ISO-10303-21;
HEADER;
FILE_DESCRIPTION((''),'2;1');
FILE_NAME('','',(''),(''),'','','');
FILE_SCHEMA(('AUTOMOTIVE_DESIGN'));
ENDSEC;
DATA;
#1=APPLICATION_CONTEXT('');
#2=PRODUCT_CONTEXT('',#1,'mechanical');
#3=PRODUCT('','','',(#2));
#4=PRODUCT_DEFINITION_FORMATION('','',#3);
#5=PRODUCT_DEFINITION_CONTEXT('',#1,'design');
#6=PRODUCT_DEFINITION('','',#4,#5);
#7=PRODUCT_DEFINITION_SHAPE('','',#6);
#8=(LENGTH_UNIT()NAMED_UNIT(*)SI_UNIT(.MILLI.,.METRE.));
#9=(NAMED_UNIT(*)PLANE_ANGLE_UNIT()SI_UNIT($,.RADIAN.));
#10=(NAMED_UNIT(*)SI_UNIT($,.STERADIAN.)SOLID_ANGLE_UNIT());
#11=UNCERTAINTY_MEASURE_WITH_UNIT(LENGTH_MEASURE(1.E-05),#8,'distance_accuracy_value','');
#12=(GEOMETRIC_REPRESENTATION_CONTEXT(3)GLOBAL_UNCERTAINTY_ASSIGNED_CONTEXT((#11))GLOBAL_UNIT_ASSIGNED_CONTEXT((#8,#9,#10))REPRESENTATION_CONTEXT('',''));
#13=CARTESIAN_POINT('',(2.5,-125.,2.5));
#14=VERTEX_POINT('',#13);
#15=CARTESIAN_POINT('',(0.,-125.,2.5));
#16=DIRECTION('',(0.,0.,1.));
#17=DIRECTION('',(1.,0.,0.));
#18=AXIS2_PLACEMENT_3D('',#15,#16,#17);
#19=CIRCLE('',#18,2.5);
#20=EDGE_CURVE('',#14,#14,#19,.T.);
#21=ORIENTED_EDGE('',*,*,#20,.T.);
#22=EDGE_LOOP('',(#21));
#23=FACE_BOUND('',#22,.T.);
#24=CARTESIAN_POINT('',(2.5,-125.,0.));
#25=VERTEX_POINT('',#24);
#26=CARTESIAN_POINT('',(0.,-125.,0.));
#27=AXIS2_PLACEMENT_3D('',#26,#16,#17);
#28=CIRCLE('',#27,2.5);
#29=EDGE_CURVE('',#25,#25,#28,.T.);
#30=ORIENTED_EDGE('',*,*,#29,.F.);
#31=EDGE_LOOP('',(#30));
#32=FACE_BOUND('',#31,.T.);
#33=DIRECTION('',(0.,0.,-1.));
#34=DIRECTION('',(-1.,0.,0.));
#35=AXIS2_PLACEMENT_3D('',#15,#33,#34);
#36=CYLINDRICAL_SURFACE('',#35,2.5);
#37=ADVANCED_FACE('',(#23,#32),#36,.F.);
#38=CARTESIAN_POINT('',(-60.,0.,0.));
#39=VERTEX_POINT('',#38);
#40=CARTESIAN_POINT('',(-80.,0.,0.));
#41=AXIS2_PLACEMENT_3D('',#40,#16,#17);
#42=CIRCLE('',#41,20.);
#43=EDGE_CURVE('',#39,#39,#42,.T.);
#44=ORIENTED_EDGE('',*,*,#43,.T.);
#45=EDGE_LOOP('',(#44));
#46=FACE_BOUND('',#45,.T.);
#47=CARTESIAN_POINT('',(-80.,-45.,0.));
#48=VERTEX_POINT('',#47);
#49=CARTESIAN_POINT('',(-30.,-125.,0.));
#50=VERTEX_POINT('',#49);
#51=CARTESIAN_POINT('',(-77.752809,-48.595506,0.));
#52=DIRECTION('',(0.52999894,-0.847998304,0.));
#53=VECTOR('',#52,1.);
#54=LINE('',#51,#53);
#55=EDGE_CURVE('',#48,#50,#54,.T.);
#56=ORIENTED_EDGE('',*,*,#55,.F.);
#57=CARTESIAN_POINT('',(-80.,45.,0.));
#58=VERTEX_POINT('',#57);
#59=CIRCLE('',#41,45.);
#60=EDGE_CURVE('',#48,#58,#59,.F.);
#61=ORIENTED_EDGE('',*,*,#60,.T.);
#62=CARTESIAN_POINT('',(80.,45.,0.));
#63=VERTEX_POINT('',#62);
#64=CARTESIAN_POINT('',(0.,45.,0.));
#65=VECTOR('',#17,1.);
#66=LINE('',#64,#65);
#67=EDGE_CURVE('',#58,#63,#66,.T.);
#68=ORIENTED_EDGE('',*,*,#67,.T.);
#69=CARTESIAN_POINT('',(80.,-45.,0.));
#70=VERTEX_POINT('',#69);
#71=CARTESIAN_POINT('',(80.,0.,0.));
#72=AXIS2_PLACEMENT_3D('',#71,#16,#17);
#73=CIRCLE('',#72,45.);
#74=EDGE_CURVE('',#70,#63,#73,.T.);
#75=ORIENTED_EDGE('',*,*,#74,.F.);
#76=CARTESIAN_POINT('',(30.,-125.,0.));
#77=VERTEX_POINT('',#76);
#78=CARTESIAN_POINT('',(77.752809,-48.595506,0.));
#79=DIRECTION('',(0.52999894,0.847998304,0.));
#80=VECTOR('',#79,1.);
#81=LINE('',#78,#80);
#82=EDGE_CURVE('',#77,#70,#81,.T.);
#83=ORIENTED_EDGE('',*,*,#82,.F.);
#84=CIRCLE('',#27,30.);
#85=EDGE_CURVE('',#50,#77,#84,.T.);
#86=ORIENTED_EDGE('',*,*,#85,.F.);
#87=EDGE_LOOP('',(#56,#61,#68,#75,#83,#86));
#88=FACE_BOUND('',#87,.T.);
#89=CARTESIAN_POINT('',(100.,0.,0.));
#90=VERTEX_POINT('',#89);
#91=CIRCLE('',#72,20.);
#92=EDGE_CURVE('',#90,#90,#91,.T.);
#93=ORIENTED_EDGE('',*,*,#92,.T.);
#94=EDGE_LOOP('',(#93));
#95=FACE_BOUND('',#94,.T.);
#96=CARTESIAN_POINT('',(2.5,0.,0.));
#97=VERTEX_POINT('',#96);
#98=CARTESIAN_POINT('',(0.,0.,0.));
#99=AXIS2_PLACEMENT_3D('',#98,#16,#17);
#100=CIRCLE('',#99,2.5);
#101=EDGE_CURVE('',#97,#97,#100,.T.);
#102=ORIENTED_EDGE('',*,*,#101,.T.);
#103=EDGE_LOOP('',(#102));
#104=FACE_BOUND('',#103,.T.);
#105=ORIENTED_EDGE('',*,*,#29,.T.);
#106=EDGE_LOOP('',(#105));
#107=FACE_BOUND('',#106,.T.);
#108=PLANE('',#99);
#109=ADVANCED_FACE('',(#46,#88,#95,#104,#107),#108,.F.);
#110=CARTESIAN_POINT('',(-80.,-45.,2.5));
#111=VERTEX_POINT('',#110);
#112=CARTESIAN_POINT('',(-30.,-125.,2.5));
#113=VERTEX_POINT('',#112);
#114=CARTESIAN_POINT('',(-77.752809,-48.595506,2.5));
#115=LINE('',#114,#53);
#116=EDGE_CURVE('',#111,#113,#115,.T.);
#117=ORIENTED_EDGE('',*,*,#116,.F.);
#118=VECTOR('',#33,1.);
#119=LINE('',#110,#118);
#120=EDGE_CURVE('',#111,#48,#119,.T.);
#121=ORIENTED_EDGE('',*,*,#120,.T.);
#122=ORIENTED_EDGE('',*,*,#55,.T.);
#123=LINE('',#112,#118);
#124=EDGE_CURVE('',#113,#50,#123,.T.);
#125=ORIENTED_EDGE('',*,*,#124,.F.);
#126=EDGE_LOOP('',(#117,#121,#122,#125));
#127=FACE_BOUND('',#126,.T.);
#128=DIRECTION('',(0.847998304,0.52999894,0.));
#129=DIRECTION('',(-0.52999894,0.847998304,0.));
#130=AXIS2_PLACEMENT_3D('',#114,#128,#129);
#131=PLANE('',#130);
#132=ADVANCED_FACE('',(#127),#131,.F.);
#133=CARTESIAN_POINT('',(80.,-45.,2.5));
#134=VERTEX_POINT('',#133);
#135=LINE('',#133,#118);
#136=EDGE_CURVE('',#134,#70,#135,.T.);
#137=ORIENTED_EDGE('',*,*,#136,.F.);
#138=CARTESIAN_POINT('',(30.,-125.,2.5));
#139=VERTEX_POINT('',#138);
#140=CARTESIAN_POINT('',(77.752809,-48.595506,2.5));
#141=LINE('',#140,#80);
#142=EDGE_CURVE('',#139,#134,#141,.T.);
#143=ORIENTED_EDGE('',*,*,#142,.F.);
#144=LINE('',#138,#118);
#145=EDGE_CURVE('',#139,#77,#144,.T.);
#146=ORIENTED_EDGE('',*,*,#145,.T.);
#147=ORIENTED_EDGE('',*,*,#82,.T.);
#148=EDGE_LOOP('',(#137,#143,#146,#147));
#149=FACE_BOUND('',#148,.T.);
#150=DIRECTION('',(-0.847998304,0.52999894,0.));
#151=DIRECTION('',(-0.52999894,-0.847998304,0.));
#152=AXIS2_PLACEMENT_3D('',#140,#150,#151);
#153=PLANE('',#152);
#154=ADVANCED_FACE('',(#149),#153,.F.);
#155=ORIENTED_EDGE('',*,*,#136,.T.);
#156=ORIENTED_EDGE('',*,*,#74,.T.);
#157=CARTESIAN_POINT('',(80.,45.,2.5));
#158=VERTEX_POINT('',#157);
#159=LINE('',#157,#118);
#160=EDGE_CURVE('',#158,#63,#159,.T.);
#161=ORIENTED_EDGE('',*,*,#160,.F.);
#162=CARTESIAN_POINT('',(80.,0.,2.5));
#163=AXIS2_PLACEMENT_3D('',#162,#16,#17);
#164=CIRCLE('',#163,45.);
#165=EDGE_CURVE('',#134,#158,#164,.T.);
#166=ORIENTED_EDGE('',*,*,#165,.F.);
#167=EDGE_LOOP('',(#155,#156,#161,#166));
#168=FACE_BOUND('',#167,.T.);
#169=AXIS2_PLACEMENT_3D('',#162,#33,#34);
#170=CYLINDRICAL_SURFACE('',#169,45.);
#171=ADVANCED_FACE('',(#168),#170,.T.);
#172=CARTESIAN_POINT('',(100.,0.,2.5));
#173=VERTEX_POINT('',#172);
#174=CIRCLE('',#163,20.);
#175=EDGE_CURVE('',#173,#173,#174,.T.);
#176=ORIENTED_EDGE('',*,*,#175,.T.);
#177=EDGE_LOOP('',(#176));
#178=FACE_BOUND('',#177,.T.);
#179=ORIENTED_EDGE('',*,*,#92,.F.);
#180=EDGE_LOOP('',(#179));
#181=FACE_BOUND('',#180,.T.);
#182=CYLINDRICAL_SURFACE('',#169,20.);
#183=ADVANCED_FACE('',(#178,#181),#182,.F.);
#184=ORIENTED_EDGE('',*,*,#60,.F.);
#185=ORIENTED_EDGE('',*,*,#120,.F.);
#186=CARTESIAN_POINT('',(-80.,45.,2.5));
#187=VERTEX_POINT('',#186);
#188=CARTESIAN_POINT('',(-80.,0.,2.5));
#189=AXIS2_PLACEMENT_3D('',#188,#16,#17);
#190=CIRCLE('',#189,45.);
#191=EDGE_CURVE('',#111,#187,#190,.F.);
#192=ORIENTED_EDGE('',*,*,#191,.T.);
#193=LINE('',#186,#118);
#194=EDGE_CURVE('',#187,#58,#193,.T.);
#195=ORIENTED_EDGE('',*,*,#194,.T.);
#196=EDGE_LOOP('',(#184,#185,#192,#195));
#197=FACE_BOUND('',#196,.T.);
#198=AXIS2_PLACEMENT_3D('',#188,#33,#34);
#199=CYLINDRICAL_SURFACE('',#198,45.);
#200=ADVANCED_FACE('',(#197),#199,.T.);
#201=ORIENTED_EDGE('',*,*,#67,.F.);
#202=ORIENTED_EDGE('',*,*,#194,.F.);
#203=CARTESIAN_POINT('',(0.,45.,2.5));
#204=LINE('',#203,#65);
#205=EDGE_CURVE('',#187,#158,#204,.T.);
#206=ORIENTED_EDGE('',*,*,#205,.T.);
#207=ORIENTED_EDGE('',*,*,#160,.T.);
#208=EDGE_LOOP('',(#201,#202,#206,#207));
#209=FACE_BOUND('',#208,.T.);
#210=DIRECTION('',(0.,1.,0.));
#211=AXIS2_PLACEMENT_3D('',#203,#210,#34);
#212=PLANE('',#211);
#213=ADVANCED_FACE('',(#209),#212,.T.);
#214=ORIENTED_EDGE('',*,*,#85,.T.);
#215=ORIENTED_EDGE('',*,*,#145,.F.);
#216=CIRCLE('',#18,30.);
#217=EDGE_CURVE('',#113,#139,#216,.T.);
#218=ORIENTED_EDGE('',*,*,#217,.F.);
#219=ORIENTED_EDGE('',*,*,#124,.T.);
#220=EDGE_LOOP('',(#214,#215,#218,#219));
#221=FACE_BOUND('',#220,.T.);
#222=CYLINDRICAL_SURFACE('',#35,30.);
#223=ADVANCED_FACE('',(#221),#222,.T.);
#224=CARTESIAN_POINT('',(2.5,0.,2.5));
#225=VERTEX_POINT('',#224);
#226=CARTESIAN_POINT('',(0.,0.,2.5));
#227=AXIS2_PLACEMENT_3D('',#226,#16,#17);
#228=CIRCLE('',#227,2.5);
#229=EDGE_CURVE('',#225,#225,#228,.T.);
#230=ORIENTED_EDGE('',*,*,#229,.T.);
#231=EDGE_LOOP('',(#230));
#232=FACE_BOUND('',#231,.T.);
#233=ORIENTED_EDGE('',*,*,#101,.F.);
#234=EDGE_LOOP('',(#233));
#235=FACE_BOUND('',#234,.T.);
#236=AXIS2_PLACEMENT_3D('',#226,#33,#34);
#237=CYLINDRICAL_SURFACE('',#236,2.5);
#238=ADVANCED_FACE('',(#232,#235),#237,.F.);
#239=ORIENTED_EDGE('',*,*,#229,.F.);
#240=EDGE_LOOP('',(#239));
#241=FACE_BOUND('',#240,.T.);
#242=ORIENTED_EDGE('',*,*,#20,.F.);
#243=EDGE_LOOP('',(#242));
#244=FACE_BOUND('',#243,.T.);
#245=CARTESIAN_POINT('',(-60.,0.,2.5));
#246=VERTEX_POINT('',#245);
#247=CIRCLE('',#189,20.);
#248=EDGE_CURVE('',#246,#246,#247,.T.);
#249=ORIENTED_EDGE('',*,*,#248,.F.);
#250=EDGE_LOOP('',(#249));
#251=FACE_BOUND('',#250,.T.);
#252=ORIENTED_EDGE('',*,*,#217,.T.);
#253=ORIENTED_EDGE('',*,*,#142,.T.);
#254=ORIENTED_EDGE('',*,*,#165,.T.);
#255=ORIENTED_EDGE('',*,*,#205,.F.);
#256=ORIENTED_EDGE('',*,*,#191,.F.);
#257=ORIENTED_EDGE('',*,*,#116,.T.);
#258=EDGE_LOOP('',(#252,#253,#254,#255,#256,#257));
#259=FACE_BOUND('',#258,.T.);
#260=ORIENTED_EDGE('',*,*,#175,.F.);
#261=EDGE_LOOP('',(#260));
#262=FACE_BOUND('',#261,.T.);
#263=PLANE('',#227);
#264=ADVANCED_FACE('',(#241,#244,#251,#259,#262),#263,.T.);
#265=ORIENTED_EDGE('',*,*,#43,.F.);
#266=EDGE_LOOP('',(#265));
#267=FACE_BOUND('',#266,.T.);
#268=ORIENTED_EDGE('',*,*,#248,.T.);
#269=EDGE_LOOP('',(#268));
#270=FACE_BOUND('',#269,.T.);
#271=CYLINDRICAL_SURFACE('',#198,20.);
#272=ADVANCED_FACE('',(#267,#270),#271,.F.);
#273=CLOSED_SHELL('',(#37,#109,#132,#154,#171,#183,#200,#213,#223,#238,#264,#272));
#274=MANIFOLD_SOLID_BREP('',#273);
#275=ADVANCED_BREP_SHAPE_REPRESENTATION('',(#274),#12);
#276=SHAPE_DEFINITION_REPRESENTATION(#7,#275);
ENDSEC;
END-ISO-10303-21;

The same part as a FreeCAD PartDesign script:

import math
import FreeCAD as App
import Part
import Sketcher
Q = App.Units.Quantity

doc = App.newDocument("Part")
body = doc.addObject("PartDesign::Body", "Body")

sketch1 = body.newObject("Sketcher::SketchObject", "Sketch")
sketch1.AttachmentSupport = (doc.getObject("XY_Plane"), [""])
sketch1.MapMode = "FlatFace"
sketch1.addGeometry([
    Part.LineSegment(App.Vector(80, 45, 0), App.Vector(-80, 45, 0)),
    Part.ArcOfCircle(Part.Circle(App.Vector(-80, 0, 0), App.Vector(0, 0, 1), 45), math.radians(90), math.radians(270)),
    Part.LineSegment(App.Vector(-80, -45, 0), App.Vector(-30, -125, 0)),
    Part.ArcOfCircle(Part.Circle(App.Vector(0, -125, 0), App.Vector(0, 0, 1), 30), math.radians(180), math.radians(360)),
    Part.LineSegment(App.Vector(30, -125, 0), App.Vector(80, -45, 0)),
    Part.ArcOfCircle(Part.Circle(App.Vector(80, 0, 0), App.Vector(0, 0, 1), 45), math.radians(-90), math.radians(90)),
    Part.Circle(App.Vector(0, -125, 0), App.Vector(0, 0, 1), 2.5),
    Part.Circle(App.Vector(80, 0, 0), App.Vector(0, 0, 1), 20),
    Part.Circle(App.Vector(0, 0, 0), App.Vector(0, 0, 1), 2.5),
    Part.Circle(App.Vector(-80, 0, 0), App.Vector(0, 0, 1), 20),
], False)
sketch1.addConstraint([
    Sketcher.Constraint("Tangent", 0, 2, 1, 1),
    Sketcher.Constraint("Coincident", 1, 2, 2, 1),
    Sketcher.Constraint("Coincident", 2, 2, 3, 1),
    Sketcher.Constraint("Coincident", 3, 2, 4, 1),
    Sketcher.Constraint("Coincident", 4, 2, 5, 1),
    Sketcher.Constraint("Tangent", 5, 2, 0, 1),
    Sketcher.Constraint("Horizontal", 0),
    Sketcher.Constraint("Coincident", 8, 3, -1, 1),
    Sketcher.Constraint("Coincident", 6, 3, 3, 3),
    Sketcher.Constraint("Coincident", 7, 3, 5, 3),
    Sketcher.Constraint("Coincident", 9, 3, 1, 3),
    Sketcher.Constraint("Equal", 1, 5),
    Sketcher.Constraint("Equal", 6, 8),
    Sketcher.Constraint("Equal", 7, 9),
    Sketcher.Constraint("Symmetric", 1, 3, 5, 3, -1, 1),
    Sketcher.Constraint("Symmetric", 2, 2, 3, 2, -2),
    Sketcher.Constraint("Horizontal", 6, 3, 2, 2),
    Sketcher.Constraint("Vertical", 0, 2, 1, 2),
    Sketcher.Constraint("Vertical", 7, 3, 4, 2),
    Sketcher.Constraint("Diameter", 6, Q("5 mm")),
    Sketcher.Constraint("Diameter", 7, Q("40 mm")),
    Sketcher.Constraint("Radius", 1, Q("45 mm")),
    Sketcher.Constraint("Radius", 3, Q("30 mm")),
    Sketcher.Constraint("DistanceX", 0, 2, 0, 1, Q("160 mm")),
    Sketcher.Constraint("DistanceY", 3, 3, -1, 1, Q("125 mm")),
])
pad1 = body.newObject("PartDesign::Pad", "Pad")
pad1.Profile = sketch1
pad1.Length = 2.5

doc.recompute()
